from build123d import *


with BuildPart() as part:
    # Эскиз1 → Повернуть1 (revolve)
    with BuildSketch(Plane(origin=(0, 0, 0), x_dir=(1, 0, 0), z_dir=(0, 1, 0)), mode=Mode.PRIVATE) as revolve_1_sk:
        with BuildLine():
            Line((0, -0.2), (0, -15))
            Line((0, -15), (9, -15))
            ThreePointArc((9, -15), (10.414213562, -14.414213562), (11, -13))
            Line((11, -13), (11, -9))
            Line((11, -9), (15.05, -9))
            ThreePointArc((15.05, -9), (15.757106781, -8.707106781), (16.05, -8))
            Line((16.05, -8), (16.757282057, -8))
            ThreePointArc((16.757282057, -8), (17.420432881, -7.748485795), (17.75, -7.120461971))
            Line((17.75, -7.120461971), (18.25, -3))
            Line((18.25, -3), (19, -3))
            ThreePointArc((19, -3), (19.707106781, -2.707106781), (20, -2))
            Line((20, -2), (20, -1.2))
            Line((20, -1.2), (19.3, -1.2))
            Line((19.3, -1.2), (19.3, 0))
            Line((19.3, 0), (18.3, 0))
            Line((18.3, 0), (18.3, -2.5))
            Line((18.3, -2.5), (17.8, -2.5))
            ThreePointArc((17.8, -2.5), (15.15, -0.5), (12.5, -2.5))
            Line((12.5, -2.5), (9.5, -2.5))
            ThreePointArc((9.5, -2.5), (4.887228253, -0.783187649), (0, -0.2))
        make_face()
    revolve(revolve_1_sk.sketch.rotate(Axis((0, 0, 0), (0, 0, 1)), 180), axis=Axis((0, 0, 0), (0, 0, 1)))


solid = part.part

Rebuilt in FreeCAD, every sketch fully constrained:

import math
import FreeCAD as App
import Part
import Sketcher

V = App.Vector

doc = App.newDocument("Part")
body = doc.addObject("PartDesign::Body", "Body")

# Sketch on XZ plane
sketch1 = body.newObject("Sketcher::SketchObject", "Sketch")
sketch1.AttachmentSupport = (doc.getObject("XZ_Plane"), [""])
sketch1.MapMode = "FlatFace"
sketch1.addGeometry(Part.LineSegment(V(0, 0.2, 0), V(0, 15, 0)), False)
sketch1.addGeometry(Part.LineSegment(V(0, 15, 0), V(9, 15, 0)), False)
sketch1.addGeometry(Part.ArcOfCircle(Part.Circle(V(9, 13, 0), V(0, 0, 1), 2), math.radians(0), math.radians(90)), False)
sketch1.addGeometry(Part.LineSegment(V(11, 13, 0), V(11, 9, 0)), False)
sketch1.addGeometry(Part.LineSegment(V(11, 9, 0), V(15.1, 9, 0)), False)
sketch1.addGeometry(Part.ArcOfCircle(Part.Circle(V(15, 8, 0), V(0, 0, 1), 1), math.radians(0), math.radians(90)), False)
sketch1.addGeometry(Part.LineSegment(V(16.1, 8, 0), V(16.8, 8, 0)), False)
sketch1.addGeometry(Part.ArcOfCircle(Part.Circle(V(16.8, 7, 0), V(0, 0, 1), 1), math.radians(7), math.radians(90)), False)
sketch1.addGeometry(Part.LineSegment(V(17.8, 7.1, 0), V(18.2, 3, 0)), False)
sketch1.addGeometry(Part.LineSegment(V(18.2, 3, 0), V(19, 3, 0)), False)
sketch1.addGeometry(Part.ArcOfCircle(Part.Circle(V(19, 2, 0), V(0, 0, 1), 1), math.radians(0), math.radians(90)), False)
sketch1.addGeometry(Part.LineSegment(V(20, 2, 0), V(20, 1.2, 0)), False)
sketch1.addGeometry(Part.LineSegment(V(20, 1.2, 0), V(19.3, 1.2, 0)), False)
sketch1.addGeometry(Part.LineSegment(V(19.3, 1.2, 0), V(19.3, 0, 0)), False)
sketch1.addGeometry(Part.LineSegment(V(19.3, 0, 0), V(18.3, 0, 0)), False)
sketch1.addGeometry(Part.LineSegment(V(18.3, 0, 0), V(18.3, 2.5, 0)), False)
sketch1.addGeometry(Part.LineSegment(V(18.3, 2.5, 0), V(17.8, 2.5, 0)), False)
sketch1.addGeometry(Part.ArcOfCircle(Part.Circle(V(15.2, 3.3, 0), V(0, 0, 1), 2.8), math.radians(-164), math.radians(-16)), False)
sketch1.addGeometry(Part.LineSegment(V(12.5, 2.5, 0), V(9.5, 2.5, 0)), False)
sketch1.addGeometry(Part.ArcOfCircle(Part.Circle(V(0, 21, 0), V(0, 0, 1), 20.8), math.radians(-90), math.radians(-63)), False)
sketch1.addConstraint(Sketcher.Constraint("Coincident", 0, 2, 1, 1))
sketch1.addConstraint(Sketcher.Constraint("Tangent", 1, 2, 2, 2))
sketch1.addConstraint(Sketcher.Constraint("Tangent", 2, 1, 3, 1))
sketch1.addConstraint(Sketcher.Constraint("Coincident", 3, 2, 4, 1))
sketch1.addConstraint(Sketcher.Constraint("Tangent", 4, 2, 5, 2))
sketch1.addConstraint(Sketcher.Constraint("Coincident", 5, 1, 6, 1))
sketch1.addConstraint(Sketcher.Constraint("Tangent", 6, 2, 7, 2))
sketch1.addConstraint(Sketcher.Constraint("Tangent", 7, 1, 8, 1))
sketch1.addConstraint(Sketcher.Constraint("Coincident", 8, 2, 9, 1))
sketch1.addConstraint(Sketcher.Constraint("Tangent", 9, 2, 10, 2))
sketch1.addConstraint(Sketcher.Constraint("Tangent", 10, 1, 11, 1))
sketch1.addConstraint(Sketcher.Constraint("Coincident", 11, 2, 12, 1))
sketch1.addConstraint(Sketcher.Constraint("Coincident", 12, 2, 13, 1))
sketch1.addConstraint(Sketcher.Constraint("Coincident", 13, 2, 14, 1))
sketch1.addConstraint(Sketcher.Constraint("Coincident", 14, 2, 15, 1))
sketch1.addConstraint(Sketcher.Constraint("Coincident", 15, 2, 16, 1))
sketch1.addConstraint(Sketcher.Constraint("Coincident", 16, 2, 17, 2))
sketch1.addConstraint(Sketcher.Constraint("Coincident", 17, 1, 18, 1))
sketch1.addConstraint(Sketcher.Constraint("Coincident", 18, 2, 19, 2))
sketch1.addConstraint(Sketcher.Constraint("Coincident", 19, 1, 0, 1))
sketch1.addConstraint(Sketcher.Constraint("Vertical", 0))
sketch1.addConstraint(Sketcher.Constraint("Horizontal", 1))
sketch1.addConstraint(Sketcher.Constraint("Vertical", 3))
sketch1.addConstraint(Sketcher.Constraint("Horizontal", 4))
sketch1.addConstraint(Sketcher.Constraint("Horizontal", 6))
sketch1.addConstraint(Sketcher.Constraint("Horizontal", 9))
sketch1.addConstraint(Sketcher.Constraint("Vertical", 11))
sketch1.addConstraint(Sketcher.Constraint("Horizontal", 12))
sketch1.addConstraint(Sketcher.Constraint("Vertical", 13))
sketch1.addConstraint(Sketcher.Constraint("Horizontal", 14))
sketch1.addConstraint(Sketcher.Constraint("Vertical", 15))
sketch1.addConstraint(Sketcher.Constraint("Horizontal", 16))
sketch1.addConstraint(Sketcher.Constraint("Horizontal", 18))
sketch1.addConstraint(Sketcher.Constraint("Equal", 5, 7))
sketch1.addConstraint(Sketcher.Constraint("Equal", 7, 10))
sketch1.addConstraint(Sketcher.Constraint("PointOnObject", 19, 3, -2))
sketch1.addConstraint(Sketcher.Constraint("PointOnObject", 0, 2, -2))
sketch1.addConstraint(Sketcher.Constraint("PointOnObject", 13, 2, -1))
sketch1.addConstraint(Sketcher.Constraint("Horizontal", 16, 2, 17, 1))
sketch1.addConstraint(Sketcher.Constraint("Radius", 2, 2.0))
sketch1.addConstraint(Sketcher.Constraint("Radius", 5, 1.0))
sketch1.addConstraint(Sketcher.Constraint("DistanceX", 1, 1, 1, 2, 9.0))
sketch1.addConstraint(Sketcher.Constraint("DistanceX", 14, 2, 14, 1, 1.0))
sketch1.addConstraint(Sketcher.Constraint("DistanceX", 18, 2, 18, 1, 3.0))
sketch1.addConstraint(Sketcher.Constraint("DistanceY", 3, 2, 3, 1, 4.0))
sketch1.addConstraint(Sketcher.Constraint("DistanceX", 12, 2, 12, 1, 0.7))
sketch1.addConstraint(Sketcher.Constraint("DistanceX", 16, 2, 16, 1, 0.5))
sketch1.addConstraint(Sketcher.Constraint("DistanceY", 0, 1, 0, 2, 14.8))
sketch1.addConstraint(Sketcher.Constraint("DistanceY", 11, 2, 11, 1, 0.8))
sketch1.addConstraint(Sketcher.Constraint("DistanceY", 13, 2, 13, 1, 1.2))
sketch1.addConstraint(Sketcher.Constraint("DistanceY", 15, 1, 15, 2, 2.5))
sketch1.addConstraint(Sketcher.Constraint("DistanceY", -1, 1, 2, 3, 13.0))
sketch1.addConstraint(Sketcher.Constraint("DistanceY", -1, 1, 7, 3, 7.0))
sketch1.addConstraint(Sketcher.Constraint("DistanceX", -1, 1, 10, 3, 19.0))
sketch1.addConstraint(Sketcher.Constraint("DistanceX", 4, 1, 4, 2, 4.05))
sketch1.addConstraint(Sketcher.Constraint("DistanceX", 9, 1, 9, 2, 0.75))
sketch1.addConstraint(Sketcher.Constraint("DistanceX", -1, 1, 17, 1, 12.5))
sketch1.addConstraint(Sketcher.Constraint("DistanceX", 5, 1, 7, 1, 1.7))
sketch1.addConstraint(Sketcher.Constraint("Radius", 17, 2.755625))
revolution = body.newObject("PartDesign::Revolution", "Revolution")
revolution.Profile = sketch1
revolution.ReferenceAxis = (sketch1, ["V_Axis"])
revolution.Angle = 360

doc.recompute()
